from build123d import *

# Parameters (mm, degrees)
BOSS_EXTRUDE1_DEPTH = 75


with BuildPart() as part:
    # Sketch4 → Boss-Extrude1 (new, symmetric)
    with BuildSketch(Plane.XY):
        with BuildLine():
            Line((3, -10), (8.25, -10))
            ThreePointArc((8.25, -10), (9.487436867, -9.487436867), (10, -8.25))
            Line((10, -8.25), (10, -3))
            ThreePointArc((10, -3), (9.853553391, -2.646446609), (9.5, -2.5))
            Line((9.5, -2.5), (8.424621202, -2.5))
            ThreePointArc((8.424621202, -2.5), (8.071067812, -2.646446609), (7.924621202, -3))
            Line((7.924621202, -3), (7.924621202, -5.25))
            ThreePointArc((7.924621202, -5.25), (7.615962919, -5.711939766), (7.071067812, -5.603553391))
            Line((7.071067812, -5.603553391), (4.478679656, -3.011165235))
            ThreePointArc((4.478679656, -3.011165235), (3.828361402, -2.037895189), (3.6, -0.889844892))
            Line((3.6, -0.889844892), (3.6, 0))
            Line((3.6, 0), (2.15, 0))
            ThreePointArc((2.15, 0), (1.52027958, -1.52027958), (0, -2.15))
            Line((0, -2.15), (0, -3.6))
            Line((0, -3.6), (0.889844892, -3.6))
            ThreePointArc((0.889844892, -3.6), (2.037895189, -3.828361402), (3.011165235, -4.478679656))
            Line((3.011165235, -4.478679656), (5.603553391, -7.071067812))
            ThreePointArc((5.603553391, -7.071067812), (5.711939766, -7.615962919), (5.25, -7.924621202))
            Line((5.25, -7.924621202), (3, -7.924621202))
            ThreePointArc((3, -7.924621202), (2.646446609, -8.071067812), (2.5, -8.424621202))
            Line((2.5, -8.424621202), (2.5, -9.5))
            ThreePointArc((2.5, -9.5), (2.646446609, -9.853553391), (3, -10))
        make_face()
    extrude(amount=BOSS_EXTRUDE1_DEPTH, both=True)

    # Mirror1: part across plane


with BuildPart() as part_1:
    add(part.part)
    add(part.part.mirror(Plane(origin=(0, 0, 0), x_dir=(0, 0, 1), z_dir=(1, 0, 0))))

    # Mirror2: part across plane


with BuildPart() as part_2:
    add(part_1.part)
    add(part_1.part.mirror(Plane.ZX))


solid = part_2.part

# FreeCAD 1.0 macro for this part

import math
import FreeCAD as App
import Part
import Sketcher
from FreeCAD import Vector
Q = App.Units.Quantity

doc = App.newDocument("Part")
body = doc.addObject("PartDesign::Body", "Body")

# Sketch on XY plane
sketch1 = body.newObject("Sketcher::SketchObject", "Sketch")
sketch1.AttachmentSupport = (doc.getObject("XY_Plane"), [""])
sketch1.MapMode = "FlatFace"
sketch1.addGeometry(Part.LineSegment(Vector(3, -10, 0), Vector(8.25, -10, 0)), False)
sketch1.addGeometry(Part.ArcOfCircle(Part.Circle(Vector(8.25, -8.25, 0), Vector(0, 0, 1), 1.75), math.radians(-90), math.radians(0)), False)
sketch1.addGeometry(Part.LineSegment(Vector(10, -8.25, 0), Vector(10, -3, 0)), False)
sketch1.addGeometry(Part.ArcOfCircle(Part.Circle(Vector(9.5, -3, 0), Vector(0, 0, 1), 0.5), math.radians(0), math.radians(90)), False)
sketch1.addGeometry(Part.LineSegment(Vector(9.5, -2.5, 0), Vector(8.424621, -2.5, 0)), False)
sketch1.addGeometry(Part.ArcOfCircle(Part.Circle(Vector(8.424621, -3, 0), Vector(0, 0, 1), 0.5), math.radians(90), math.radians(180)), False)
sketch1.addGeometry(Part.LineSegment(Vector(7.924621, -3, 0), Vector(7.924621, -5.25, 0)), False)
sketch1.addGeometry(Part.ArcOfCircle(Part.Circle(Vector(7.424621, -5.25, 0), Vector(0, 0, 1), 0.5), math.radians(-135), math.radians(0)), False)
sketch1.addGeometry(Part.LineSegment(Vector(7.071068, -5.603553, 0), Vector(4.47868, -3.011165, 0)), False)
sketch1.addGeometry(Part.ArcOfCircle(Part.Circle(Vector(6.6, -0.889845, 0), Vector(0, 0, 1), 3), math.radians(180), math.radians(225)), False)
sketch1.addGeometry(Part.LineSegment(Vector(3.6, -0.889845, 0), Vector(3.6, 0, 0)), False)
sketch1.addGeometry(Part.LineSegment(Vector(3.6, 0, 0), Vector(2.15, 0, 0)), False)
sketch1.addGeometry(Part.ArcOfCircle(Part.Circle(Vector(0, 0, 0), Vector(0, 0, 1), 2.15), math.radians(-90), math.radians(0)), False)
sketch1.addGeometry(Part.LineSegment(Vector(0, -2.15, 0), Vector(0, -3.6, 0)), False)
sketch1.addGeometry(Part.LineSegment(Vector(0, -3.6, 0), Vector(0.889845, -3.6, 0)), False)
sketch1.addGeometry(Part.ArcOfCircle(Part.Circle(Vector(0.889845, -6.6, 0), Vector(0, 0, 1), 3), math.radians(45), math.radians(90)), False)
sketch1.addGeometry(Part.LineSegment(Vector(3.011165, -4.47868, 0), Vector(5.603553, -7.071068, 0)), False)
sketch1.addGeometry(Part.ArcOfCircle(Part.Circle(Vector(5.25, -7.424621, 0), Vector(0, 0, 1), 0.5), math.radians(-90), math.radians(45)), False)
sketch1.addGeometry(Part.LineSegment(Vector(5.25, -7.924621, 0), Vector(3, -7.924621, 0)), False)
sketch1.addGeometry(Part.ArcOfCircle(Part.Circle(Vector(3, -8.424621, 0), Vector(0, 0, 1), 0.5), math.radians(90), math.radians(180)), False)
sketch1.addGeometry(Part.LineSegment(Vector(2.5, -8.424621, 0), Vector(2.5, -9.5, 0)), False)
sketch1.addGeometry(Part.ArcOfCircle(Part.Circle(Vector(3, -9.5, 0), Vector(0, 0, 1), 0.5), math.radians(180), math.radians(270)), False)
sketch1.addConstraint(Sketcher.Constraint("Tangent", 0, 2, 1, 1))
sketch1.addConstraint(Sketcher.Constraint("Tangent", 1, 2, 2, 1))
sketch1.addConstraint(Sketcher.Constraint("Tangent", 2, 2, 3, 1))
sketch1.addConstraint(Sketcher.Constraint("Tangent", 3, 2, 4, 1))
sketch1.addConstraint(Sketcher.Constraint("Tangent", 4, 2, 5, 1))
sketch1.addConstraint(Sketcher.Constraint("Tangent", 5, 2, 6, 1))
sketch1.addConstraint(Sketcher.Constraint("Tangent", 6, 2, 7, 2))
sketch1.addConstraint(Sketcher.Constraint("Tangent", 7, 1, 8, 1))
sketch1.addConstraint(Sketcher.Constraint("Tangent", 8, 2, 9, 2))
sketch1.addConstraint(Sketcher.Constraint("Tangent", 9, 1, 10, 1))
sketch1.addConstraint(Sketcher.Constraint("Coincident", 10, 2, 11, 1))
sketch1.addConstraint(Sketcher.Constraint("Coincident", 11, 2, 12, 2))
sketch1.addConstraint(Sketcher.Constraint("Coincident", 12, 1, 13, 1))
sketch1.addConstraint(Sketcher.Constraint("Coincident", 13, 2, 14, 1))
sketch1.addConstraint(Sketcher.Constraint("Tangent", 14, 2, 15, 2))
sketch1.addConstraint(Sketcher.Constraint("Tangent", 15, 1, 16, 1))
sketch1.addConstraint(Sketcher.Constraint("Tangent", 16, 2, 17, 2))
sketch1.addConstraint(Sketcher.Constraint("Tangent", 17, 1, 18, 1))
sketch1.addConstraint(Sketcher.Constraint("Tangent", 18, 2, 19, 1))
sketch1.addConstraint(Sketcher.Constraint("Tangent", 19, 2, 20, 1))
sketch1.addConstraint(Sketcher.Constraint("Tangent", 20, 2, 21, 1))
sketch1.addConstraint(Sketcher.Constraint("Tangent", 21, 2, 0, 1))
sketch1.addConstraint(Sketcher.Constraint("Horizontal", 0))
sketch1.addConstraint(Sketcher.Constraint("Vertical", 2))
sketch1.addConstraint(Sketcher.Constraint("Horizontal", 4))
sketch1.addConstraint(Sketcher.Constraint("Vertical", 6))
sketch1.addConstraint(Sketcher.Constraint("Vertical", 10))
sketch1.addConstraint(Sketcher.Constraint("Horizontal", 11))
sketch1.addConstraint(Sketcher.Constraint("Vertical", 13))
sketch1.addConstraint(Sketcher.Constraint("Horizontal", 14))
sketch1.addConstraint(Sketcher.Constraint("Horizontal", 18))
sketch1.addConstraint(Sketcher.Constraint("Vertical", 20))
sketch1.addConstraint(Sketcher.Constraint("Coincident", 12, 3, -1, 1))
sketch1.addConstraint(Sketcher.Constraint("Equal", 3, 5))
sketch1.addConstraint(Sketcher.Constraint("Equal", 5, 7))
sketch1.addConstraint(Sketcher.Constraint("Equal", 9, 15))
sketch1.addConstraint(Sketcher.Constraint("Equal", 7, 17))
sketch1.addConstraint(Sketcher.Constraint("Equal", 17, 19))
sketch1.addConstraint(Sketcher.Constraint("Equal", 19, 21))
sketch1.addConstraint(Sketcher.Constraint("PointOnObject", 10, 2, -1))
sketch1.addConstraint(Sketcher.Constraint("PointOnObject", 12, 1, -2))
sketch1.addConstraint(Sketcher.Constraint("Parallel", 8, 16))
sketch1.addConstraint(Sketcher.Constraint("Equal", 0, 2))
sketch1.addConstraint(Sketcher.Constraint("Equal", 18, 6))
sketch1.addConstraint(Sketcher.Constraint("Equal", 14, 10))
sketch1.addConstraint(Sketcher.Constraint("Equal", 11, 13))
sketch1.addConstraint(Sketcher.Constraint("Equal", 4, 20))
sketch1.addConstraint(Sketcher.Constraint("Equal", 8, 16))
sketch1.addConstraint(Sketcher.Constraint("Radius", 9, Q("3 mm")))
sketch1.addConstraint(Sketcher.Constraint("Radius", 3, Q("0.5 mm")))
sketch1.addConstraint(Sketcher.Constraint("Radius", 1, Q("1.75 mm")))
sketch1.addConstraint(Sketcher.Constraint("Radius", 12, Q("2.15 mm")))
sketch1.addConstraint(Sketcher.Constraint("DistanceY", 3, 3, -1, 1, Q("3 mm")))
sketch1.addConstraint(Sketcher.Constraint("DistanceY", 0, 2, -1, 1, Q("10 mm")))
sketch1.addConstraint(Sketcher.Constraint("DistanceY", 1, 3, 7, 3, Q("3 mm")))
sketch1.addConstraint(Sketcher.Constraint("DistanceX", 11, 2, 11, 1, Q("1.45 mm")))
sketch1.addConstraint(Sketcher.Constraint("DistanceX", 4, 2, 4, 1, Q("1.075379 mm")))
pad1 = body.newObject("PartDesign::Pad", "Pad")
pad1.Profile = sketch1
pad1.Length = 150
pad1.Midplane = True
body2 = doc.addObject("PartDesign::Body", "Body001")
doc.recompute()

body2.BaseFeature = body
doc.recompute()

mirroring = doc.addObject("Part::Mirroring", "Mirroring")
mirroring.Source = body
mirroring.Base = Vector(0, 0, 0)
mirroring.Normal = Vector(1, 0, 0)
body3 = doc.addObject("PartDesign::Body", "Body002")
body3.BaseFeature = mirroring
boolean = body2.newObject("PartDesign::Boolean", "Boolean")
boolean.Type = "Fuse"
boolean.addObjects([body3])
doc.recompute()
body4 = doc.addObject("PartDesign::Body", "Body003")
doc.recompute()

body4.BaseFeature = body2
doc.recompute()

mirroring2 = doc.addObject("Part::Mirroring", "Mirroring001")
mirroring2.Source = body2
mirroring2.Base = Vector(0, 0, 0)
mirroring2.Normal = Vector(0, 1, 0)
body5 = doc.addObject("PartDesign::Body", "Body004")
body5.BaseFeature = mirroring2
boolean2 = body4.newObject("PartDesign::Boolean", "Boolean001")
boolean2.Type = "Fuse"
boolean2.addObjects([body5])
doc.recompute()
mirroring.Visibility = False
mirroring2.Visibility = False

doc.recompute()
